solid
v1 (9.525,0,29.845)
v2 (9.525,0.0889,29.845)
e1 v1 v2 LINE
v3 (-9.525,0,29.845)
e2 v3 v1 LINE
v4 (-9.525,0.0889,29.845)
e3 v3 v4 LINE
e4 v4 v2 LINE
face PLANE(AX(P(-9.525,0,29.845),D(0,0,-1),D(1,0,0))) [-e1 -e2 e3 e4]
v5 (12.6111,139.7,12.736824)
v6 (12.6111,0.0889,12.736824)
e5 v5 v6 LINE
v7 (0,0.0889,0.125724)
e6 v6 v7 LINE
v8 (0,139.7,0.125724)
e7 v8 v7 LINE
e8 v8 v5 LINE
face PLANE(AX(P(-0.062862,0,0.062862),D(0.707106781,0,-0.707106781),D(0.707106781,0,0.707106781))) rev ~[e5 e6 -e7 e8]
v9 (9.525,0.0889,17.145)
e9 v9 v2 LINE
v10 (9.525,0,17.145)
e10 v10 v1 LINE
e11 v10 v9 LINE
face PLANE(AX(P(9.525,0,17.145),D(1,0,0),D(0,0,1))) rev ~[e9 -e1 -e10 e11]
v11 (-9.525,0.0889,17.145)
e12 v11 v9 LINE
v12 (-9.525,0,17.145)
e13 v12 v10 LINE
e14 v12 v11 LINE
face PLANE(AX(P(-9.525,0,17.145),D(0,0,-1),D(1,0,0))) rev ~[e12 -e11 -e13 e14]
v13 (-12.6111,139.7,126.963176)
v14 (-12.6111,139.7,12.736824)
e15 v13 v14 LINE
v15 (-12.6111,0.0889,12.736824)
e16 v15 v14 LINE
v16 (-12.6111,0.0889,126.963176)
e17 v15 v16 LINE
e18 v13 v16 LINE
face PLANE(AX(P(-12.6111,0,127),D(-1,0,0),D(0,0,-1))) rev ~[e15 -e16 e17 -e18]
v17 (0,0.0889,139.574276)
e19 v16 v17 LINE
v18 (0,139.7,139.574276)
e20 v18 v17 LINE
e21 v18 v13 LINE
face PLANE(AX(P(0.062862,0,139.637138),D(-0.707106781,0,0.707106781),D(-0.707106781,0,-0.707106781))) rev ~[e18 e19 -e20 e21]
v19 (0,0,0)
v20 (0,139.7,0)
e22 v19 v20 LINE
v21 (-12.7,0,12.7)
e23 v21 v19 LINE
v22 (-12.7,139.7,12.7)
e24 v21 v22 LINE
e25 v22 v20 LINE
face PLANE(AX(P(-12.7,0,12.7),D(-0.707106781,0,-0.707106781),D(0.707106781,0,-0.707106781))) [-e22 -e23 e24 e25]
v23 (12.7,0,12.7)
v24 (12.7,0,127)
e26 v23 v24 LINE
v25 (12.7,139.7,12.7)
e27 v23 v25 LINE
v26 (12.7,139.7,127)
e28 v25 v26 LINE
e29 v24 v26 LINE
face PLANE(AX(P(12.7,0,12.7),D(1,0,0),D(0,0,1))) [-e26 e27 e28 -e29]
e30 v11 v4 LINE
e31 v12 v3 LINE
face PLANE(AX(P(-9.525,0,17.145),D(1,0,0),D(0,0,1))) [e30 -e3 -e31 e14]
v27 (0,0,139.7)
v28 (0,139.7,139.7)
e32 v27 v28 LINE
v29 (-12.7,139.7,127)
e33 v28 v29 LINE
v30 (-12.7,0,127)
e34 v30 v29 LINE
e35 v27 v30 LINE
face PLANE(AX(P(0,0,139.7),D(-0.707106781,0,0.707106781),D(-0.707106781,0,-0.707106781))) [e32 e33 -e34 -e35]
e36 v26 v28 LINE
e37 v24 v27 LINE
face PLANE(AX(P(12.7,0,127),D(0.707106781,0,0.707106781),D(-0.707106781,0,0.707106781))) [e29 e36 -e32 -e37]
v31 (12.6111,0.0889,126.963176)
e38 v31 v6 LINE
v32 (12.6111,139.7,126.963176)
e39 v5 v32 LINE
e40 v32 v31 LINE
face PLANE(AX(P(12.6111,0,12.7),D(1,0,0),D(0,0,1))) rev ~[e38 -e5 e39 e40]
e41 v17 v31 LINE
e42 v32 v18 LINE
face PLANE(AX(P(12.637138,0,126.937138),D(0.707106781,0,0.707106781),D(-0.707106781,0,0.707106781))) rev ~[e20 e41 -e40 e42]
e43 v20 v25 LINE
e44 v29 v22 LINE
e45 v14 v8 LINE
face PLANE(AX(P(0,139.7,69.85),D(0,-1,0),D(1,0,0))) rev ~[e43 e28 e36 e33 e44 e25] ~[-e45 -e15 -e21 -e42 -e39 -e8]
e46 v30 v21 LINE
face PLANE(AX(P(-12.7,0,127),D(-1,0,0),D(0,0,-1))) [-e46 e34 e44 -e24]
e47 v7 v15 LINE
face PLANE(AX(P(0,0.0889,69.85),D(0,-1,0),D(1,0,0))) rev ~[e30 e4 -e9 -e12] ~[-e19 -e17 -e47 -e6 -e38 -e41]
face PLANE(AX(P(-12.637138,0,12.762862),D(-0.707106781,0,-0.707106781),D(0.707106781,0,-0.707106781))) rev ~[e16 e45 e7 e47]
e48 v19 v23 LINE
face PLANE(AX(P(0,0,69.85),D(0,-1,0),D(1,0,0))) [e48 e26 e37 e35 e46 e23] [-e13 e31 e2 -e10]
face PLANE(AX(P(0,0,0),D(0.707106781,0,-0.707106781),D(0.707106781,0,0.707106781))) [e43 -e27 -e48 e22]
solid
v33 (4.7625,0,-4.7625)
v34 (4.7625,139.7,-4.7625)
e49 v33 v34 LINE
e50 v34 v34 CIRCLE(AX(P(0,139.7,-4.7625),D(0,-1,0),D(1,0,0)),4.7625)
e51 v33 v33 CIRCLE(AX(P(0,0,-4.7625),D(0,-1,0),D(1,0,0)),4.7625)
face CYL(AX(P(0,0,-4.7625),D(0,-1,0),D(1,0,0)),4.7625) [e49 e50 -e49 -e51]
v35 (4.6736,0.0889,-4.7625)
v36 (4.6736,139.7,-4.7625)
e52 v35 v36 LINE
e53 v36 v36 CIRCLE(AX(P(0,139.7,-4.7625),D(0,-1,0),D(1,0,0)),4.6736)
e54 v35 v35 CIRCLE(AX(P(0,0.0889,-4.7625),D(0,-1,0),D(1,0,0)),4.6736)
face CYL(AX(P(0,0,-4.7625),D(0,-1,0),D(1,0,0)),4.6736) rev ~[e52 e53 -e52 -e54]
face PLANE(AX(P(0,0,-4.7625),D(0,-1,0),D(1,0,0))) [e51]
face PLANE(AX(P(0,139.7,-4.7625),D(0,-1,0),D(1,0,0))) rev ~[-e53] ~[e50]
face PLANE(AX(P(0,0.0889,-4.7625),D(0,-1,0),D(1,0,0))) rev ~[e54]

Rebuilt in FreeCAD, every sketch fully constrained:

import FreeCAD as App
import Part
import Sketcher

V = App.Vector
Q = App.Units.Quantity


def faces_at(feature, points):
    """Names of the faces that lie closest to the given points."""
    faces = feature.Shape.Faces
    near = lambda p: min(range(len(faces)), key=lambda i: faces[i].distToShape(Part.Vertex(*p))[0])
    return sorted({f"Face{near(p) + 1}" for p in points})

doc = App.newDocument("Part")
body = doc.addObject("PartDesign::Body", "Body")

sketch1 = body.newObject("Sketcher::SketchObject", "Sketch")
sketch1.AttachmentSupport = (doc.getObject("XZ_Plane"), [""])
sketch1.MapMode = "FlatFace"
sketch1.addGeometry([
    Part.LineSegment(V(-12.7, 12.7, 0), V(0, 0, 0)),
    Part.LineSegment(V(0, 0, 0), V(12.7, 12.7, 0)),
    Part.LineSegment(V(12.7, 12.7, 0), V(12.7, 127, 0)),
    Part.LineSegment(V(12.7, 127, 0), V(0, 139.7, 0)),
    Part.LineSegment(V(0, 139.7, 0), V(-12.7, 127, 0)),
    Part.LineSegment(V(-12.7, 127, 0), V(-12.7, 12.7, 0)),
], False)
sketch1.addConstraint([
    Sketcher.Constraint("Coincident", 0, 2, 1, 1),
    Sketcher.Constraint("Coincident", 1, 2, 2, 1),
    Sketcher.Constraint("Coincident", 2, 2, 3, 1),
    Sketcher.Constraint("Coincident", 3, 2, 4, 1),
    Sketcher.Constraint("Coincident", 4, 2, 5, 1),
    Sketcher.Constraint("Coincident", 5, 2, 0, 1),
    Sketcher.Constraint("Vertical", 2),
    Sketcher.Constraint("Vertical", 5),
    Sketcher.Constraint("Coincident", 0, 2, -1, 1),
    Sketcher.Constraint("Symmetric", 2, 2, 4, 2, -2),
    Sketcher.Constraint("PointOnObject", 3, 2, -2),
    Sketcher.Constraint("Perpendicular", 0, 1),
    Sketcher.Constraint("Perpendicular", 1, 3),
    Sketcher.Constraint("Perpendicular", 3, 4),
    Sketcher.Constraint("DistanceY", 2, 1, 2, 2, Q("4.5 in")),
    Sketcher.Constraint("DistanceY", -1, 1, 2, 2, Q("5 in")),
])
pad1 = body.newObject("PartDesign::Pad", "Pad")
pad1.Profile = sketch1
pad1.Length = Q("5.5 in")
pad1.Reversed = True
doc.recompute()

thickness = body.newObject("PartDesign::Thickness", "Thickness")
thickness.Base = (pad1, faces_at(pad1, [(0, 139.7, 69.85)]))
thickness.Value = Q("0.0035 in")
thickness.Reversed = True
thickness.Join = "Arc"

sketch2 = body.newObject("Sketcher::SketchObject", "Sketch001")
sketch2.AttachmentSupport = (doc.getObject("XZ_Plane"), [""])
sketch2.MapMode = "FlatFace"
sketch2.addGeometry([
    Part.LineSegment(V(-9.525, 29.845, 0), V(-9.525, 17.145, 0)),
    Part.LineSegment(V(-9.525, 17.145, 0), V(9.525, 17.145, 0)),
    Part.LineSegment(V(9.525, 17.145, 0), V(9.525, 29.845, 0)),
    Part.LineSegment(V(9.525, 29.845, 0), V(-9.525, 29.845, 0)),
], False)
sketch2.addConstraint([
    Sketcher.Constraint("Coincident", 0, 2, 1, 1),
    Sketcher.Constraint("Coincident", 1, 2, 2, 1),
    Sketcher.Constraint("Coincident", 2, 2, 3, 1),
    Sketcher.Constraint("Coincident", 3, 2, 0, 1),
    Sketcher.Constraint("Vertical", 0),
    Sketcher.Constraint("Horizontal", 1),
    Sketcher.Constraint("Vertical", 2),
    Sketcher.Constraint("Horizontal", 3),
    Sketcher.Constraint("DistanceY", 0, 2, 0, 1, Q("0.5 in")),
    Sketcher.Constraint("DistanceX", 1, 1, 1, 2, Q("0.75 in")),
    Sketcher.Constraint("DistanceX", 0, 2, -1, 1, Q("0.375 in")),
    Sketcher.Constraint("DistanceY", -1, 1, 0, 2, Q("0.675 in")),
])
pocket1 = body.newObject("PartDesign::Pocket", "Pocket")
pocket1.Profile = sketch2
pocket1.Type = "ThroughAll"
body2 = doc.addObject("PartDesign::Body", "Body001")

sketch3 = body2.newObject("Sketcher::SketchObject", "Sketch002")
sketch3.AttachmentSupport = (doc.getObject("XZ_Plane001"), [""])
sketch3.MapMode = "FlatFace"
sketch3.addGeometry(Part.Circle(V(0, -4.7625, 0), V(0, 0, 1), 4.7625), False)
sketch3.addConstraint([
    Sketcher.Constraint("PointOnObject", 0, 3, -2),
    Sketcher.Constraint("Diameter", 0, Q("0.375 in")),
    Sketcher.Constraint("DistanceY", 0, 3, -1, 1, Q("0.1875 in")),
])
pad2 = body2.newObject("PartDesign::Pad", "Pad001")
pad2.Profile = sketch3
pad2.Length = Q("5.5 in")
pad2.Reversed = True
doc.recompute()

thickness2 = body2.newObject("PartDesign::Thickness", "Thickness001")
thickness2.Base = (pad2, faces_at(pad2, [(0, 139.7, -4.763)]))
thickness2.Value = Q("0.0035 in")
thickness2.Reversed = True
thickness2.Join = "Arc"

doc.recompute()
